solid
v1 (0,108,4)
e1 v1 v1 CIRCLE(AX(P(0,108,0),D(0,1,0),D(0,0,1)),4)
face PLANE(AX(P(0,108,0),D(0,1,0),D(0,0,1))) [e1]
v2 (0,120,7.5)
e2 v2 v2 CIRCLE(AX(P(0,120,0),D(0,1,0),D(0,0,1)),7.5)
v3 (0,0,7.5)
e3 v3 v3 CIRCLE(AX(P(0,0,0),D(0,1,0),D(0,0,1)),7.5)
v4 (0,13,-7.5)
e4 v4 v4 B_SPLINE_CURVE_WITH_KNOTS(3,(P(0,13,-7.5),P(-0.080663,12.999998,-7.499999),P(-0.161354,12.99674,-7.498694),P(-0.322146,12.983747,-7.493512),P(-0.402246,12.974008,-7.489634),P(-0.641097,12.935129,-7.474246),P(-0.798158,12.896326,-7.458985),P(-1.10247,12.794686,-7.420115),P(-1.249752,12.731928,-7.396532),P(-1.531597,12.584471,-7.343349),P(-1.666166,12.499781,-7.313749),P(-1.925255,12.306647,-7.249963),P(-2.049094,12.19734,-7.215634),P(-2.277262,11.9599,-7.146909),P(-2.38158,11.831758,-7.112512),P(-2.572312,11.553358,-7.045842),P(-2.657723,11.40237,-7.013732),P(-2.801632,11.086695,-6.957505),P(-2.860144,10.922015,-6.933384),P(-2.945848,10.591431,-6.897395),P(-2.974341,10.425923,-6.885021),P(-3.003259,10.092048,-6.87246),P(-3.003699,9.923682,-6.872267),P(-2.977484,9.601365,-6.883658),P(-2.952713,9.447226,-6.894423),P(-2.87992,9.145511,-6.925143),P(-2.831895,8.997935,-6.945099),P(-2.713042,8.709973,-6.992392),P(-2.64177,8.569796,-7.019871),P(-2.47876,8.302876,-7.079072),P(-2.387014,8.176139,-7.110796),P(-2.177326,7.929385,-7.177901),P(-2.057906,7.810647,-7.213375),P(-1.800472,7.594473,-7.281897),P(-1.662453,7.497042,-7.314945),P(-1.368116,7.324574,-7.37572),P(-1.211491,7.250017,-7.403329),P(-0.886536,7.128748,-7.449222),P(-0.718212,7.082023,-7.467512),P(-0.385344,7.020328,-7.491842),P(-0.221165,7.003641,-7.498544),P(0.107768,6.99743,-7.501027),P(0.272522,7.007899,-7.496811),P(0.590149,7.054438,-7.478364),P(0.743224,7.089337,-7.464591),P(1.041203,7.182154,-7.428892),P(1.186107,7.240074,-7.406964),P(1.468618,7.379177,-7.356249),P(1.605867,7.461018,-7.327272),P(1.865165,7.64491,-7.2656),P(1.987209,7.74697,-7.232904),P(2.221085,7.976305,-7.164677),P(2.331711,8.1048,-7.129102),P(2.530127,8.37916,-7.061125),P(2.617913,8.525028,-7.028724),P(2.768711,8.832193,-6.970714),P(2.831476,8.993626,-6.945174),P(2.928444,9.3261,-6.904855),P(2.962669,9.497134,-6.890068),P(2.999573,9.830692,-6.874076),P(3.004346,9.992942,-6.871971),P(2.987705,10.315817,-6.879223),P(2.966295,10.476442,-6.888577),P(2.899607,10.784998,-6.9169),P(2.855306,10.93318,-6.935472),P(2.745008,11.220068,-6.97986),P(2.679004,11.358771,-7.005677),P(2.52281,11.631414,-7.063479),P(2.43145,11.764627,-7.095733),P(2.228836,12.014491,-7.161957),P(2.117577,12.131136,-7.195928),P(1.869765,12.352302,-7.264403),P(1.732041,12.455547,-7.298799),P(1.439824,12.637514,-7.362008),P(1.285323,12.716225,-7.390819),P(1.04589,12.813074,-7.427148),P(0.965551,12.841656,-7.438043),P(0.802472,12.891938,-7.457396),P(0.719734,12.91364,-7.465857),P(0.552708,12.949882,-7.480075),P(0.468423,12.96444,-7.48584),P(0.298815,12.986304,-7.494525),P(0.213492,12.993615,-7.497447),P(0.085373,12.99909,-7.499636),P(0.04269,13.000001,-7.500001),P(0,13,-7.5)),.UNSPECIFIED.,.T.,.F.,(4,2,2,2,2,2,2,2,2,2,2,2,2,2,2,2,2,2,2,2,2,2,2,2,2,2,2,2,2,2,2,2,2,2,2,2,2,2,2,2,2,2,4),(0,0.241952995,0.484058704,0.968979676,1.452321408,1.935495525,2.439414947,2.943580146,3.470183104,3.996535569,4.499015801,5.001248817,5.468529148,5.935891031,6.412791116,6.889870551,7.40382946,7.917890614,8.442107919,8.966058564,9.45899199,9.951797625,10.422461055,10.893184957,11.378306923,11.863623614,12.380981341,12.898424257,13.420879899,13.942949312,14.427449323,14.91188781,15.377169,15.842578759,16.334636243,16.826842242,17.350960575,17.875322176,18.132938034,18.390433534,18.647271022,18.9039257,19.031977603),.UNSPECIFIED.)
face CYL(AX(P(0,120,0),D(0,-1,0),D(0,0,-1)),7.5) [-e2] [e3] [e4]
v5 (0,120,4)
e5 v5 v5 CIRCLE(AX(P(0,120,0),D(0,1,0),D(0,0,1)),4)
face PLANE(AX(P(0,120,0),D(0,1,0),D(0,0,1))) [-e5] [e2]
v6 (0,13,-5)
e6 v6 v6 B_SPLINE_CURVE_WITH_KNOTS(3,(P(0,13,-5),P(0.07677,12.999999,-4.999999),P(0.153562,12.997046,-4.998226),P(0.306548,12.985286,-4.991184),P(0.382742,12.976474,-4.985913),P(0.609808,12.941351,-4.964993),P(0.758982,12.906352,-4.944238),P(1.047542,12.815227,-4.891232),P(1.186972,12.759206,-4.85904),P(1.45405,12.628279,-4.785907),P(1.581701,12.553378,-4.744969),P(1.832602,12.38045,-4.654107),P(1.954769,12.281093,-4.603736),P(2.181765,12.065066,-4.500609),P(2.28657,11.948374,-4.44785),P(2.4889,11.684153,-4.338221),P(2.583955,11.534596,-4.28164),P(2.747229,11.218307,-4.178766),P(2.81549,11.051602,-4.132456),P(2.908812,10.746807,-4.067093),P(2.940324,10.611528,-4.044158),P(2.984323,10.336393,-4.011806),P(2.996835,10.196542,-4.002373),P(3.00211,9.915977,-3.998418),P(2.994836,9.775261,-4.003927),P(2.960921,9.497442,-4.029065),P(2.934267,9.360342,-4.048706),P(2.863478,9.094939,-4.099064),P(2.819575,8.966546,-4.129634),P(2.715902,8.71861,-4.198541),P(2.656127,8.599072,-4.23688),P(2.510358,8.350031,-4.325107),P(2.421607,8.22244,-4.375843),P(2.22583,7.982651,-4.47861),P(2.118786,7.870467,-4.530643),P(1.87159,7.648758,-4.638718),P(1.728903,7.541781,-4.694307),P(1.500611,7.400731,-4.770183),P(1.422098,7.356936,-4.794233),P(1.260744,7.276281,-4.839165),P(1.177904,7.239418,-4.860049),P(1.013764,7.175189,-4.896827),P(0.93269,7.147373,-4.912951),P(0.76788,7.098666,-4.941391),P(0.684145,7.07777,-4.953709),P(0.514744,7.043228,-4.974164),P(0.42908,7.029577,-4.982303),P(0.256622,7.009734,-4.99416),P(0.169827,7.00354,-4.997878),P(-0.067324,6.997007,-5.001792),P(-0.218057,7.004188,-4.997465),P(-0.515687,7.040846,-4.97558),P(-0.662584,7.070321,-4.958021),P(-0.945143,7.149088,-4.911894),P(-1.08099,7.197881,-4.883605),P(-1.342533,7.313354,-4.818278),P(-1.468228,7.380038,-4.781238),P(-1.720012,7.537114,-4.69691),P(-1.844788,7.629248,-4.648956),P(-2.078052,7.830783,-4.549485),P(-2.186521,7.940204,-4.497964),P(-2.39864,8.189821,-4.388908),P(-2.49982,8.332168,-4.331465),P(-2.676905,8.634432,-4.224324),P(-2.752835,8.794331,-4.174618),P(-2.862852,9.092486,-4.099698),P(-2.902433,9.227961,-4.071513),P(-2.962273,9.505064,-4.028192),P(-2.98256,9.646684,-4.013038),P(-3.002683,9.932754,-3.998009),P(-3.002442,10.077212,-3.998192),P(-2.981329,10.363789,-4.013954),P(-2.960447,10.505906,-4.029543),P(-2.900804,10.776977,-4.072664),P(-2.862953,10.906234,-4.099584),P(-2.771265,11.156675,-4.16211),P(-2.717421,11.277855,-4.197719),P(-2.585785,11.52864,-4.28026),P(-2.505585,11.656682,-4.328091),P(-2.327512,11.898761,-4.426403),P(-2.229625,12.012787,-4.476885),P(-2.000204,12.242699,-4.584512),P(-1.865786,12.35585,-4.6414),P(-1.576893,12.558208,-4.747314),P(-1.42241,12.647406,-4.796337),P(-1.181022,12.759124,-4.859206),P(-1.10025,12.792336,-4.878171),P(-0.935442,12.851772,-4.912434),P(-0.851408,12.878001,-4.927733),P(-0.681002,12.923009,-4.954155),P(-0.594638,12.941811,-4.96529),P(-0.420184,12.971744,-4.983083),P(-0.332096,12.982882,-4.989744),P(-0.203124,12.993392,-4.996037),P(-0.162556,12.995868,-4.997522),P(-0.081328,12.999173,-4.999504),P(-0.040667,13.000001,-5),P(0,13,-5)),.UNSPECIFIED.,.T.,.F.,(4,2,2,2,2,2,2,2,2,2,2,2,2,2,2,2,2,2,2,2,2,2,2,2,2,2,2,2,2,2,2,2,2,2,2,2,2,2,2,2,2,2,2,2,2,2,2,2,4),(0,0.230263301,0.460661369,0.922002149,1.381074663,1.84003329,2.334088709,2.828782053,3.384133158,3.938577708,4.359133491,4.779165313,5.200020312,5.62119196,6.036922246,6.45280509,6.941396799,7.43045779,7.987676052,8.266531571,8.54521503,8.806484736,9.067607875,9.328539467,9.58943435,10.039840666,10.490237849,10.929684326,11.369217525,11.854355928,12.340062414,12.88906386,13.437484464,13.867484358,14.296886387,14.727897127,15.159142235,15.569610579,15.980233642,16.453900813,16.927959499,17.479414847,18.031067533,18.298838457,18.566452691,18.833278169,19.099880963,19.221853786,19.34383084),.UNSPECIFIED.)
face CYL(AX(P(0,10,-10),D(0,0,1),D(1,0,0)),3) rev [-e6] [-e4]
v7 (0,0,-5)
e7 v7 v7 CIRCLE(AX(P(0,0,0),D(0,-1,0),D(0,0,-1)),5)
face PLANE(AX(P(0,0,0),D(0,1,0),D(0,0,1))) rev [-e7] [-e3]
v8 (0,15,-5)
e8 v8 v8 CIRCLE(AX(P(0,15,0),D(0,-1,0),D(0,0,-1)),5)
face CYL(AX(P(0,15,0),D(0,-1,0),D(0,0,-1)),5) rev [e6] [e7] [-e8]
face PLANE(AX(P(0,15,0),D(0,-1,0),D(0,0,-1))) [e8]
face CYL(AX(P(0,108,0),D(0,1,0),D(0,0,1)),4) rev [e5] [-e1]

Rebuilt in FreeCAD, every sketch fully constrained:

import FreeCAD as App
import Part
import Sketcher

doc = App.newDocument("Part")
params = doc.addObject("Spreadsheet::Sheet", "Params")
for row, (alias, value) in enumerate([
    ("sketch1_diameter", "15 mm"),
    ("pad1_length", "120 mm"),
    ("sketch2_diameter", "10 mm"),
    ("pocket1_length", "15 mm"),
    ("sketch3_diameter", "6 mm"),
    ("pocket2_length", "10 mm"),
    ("sketch4_diameter", "8 mm"),
    ("pocket3_length", "12 mm"),
], start=1):
    params.set(f"A{row}", alias)
    params.set(f"B{row}", "=" + value)
    params.setAlias(f"B{row}", alias)

body = doc.addObject("PartDesign::Body", "Body")

sketch1 = body.newObject("Sketcher::SketchObject", "Sketch")
sketch1.AttachmentSupport = (doc.getObject("XZ_Plane"), [""])
sketch1.MapMode = "FlatFace"
sketch1.addGeometry(Part.Circle(App.Vector(0, 0, 0), App.Vector(0, 0, 1), 7.5), False)
sketch1.addConstraint(Sketcher.Constraint("Coincident", 0, 3, -1, 1))
sketch1.addConstraint(Sketcher.Constraint("Diameter", 0, 15.0))
sketch1.setExpression("Constraints[1]", "Params.sketch1_diameter")
pad1 = body.newObject("PartDesign::Pad", "Pad")
pad1.Profile = sketch1
pad1.setExpression("Length", "Params.pad1_length")
pad1.Reversed = True

sketch2 = body.newObject("Sketcher::SketchObject", "Sketch001")
sketch2.AttachmentSupport = (doc.getObject("XZ_Plane"), [""])
sketch2.MapMode = "FlatFace"
sketch2.addGeometry(Part.Circle(App.Vector(0, 0, 0), App.Vector(0, 0, 1), 5), False)
sketch2.addConstraint(Sketcher.Constraint("Coincident", 0, 3, -1, 1))
sketch2.addConstraint(Sketcher.Constraint("Diameter", 0, 10.0))
sketch2.setExpression("Constraints[1]", "Params.sketch2_diameter")
pocket1 = body.newObject("PartDesign::Pocket", "Pocket")
pocket1.Profile = sketch2
pocket1.setExpression("Length", "Params.pocket1_length")

sketch3 = body.newObject("Sketcher::SketchObject", "Sketch002")
sketch3.AttachmentSupport = (doc.getObject("XY_Plane"), [""])
sketch3.MapMode = "FlatFace"
sketch3.addGeometry(Part.Circle(App.Vector(0, 10, 0), App.Vector(0, 0, 1), 3), False)
sketch3.addConstraint(Sketcher.Constraint("PointOnObject", 0, 3, -2))
sketch3.addConstraint(Sketcher.Constraint("Diameter", 0, 6.0))
sketch3.addConstraint(Sketcher.Constraint("DistanceY", -1, 1, 0, 3, 10.0))
sketch3.setExpression("Constraints[1]", "Params.sketch3_diameter")
pocket2 = body.newObject("PartDesign::Pocket", "Pocket001")
pocket2.Profile = sketch3
pocket2.setExpression("Length", "Params.pocket2_length")

sketch4 = body.newObject("Sketcher::SketchObject", "Sketch003")
sketch4.AttachmentSupport = (doc.getObject("XZ_Plane"), [""])
sketch4.MapMode = "FlatFace"
sketch4.AttachmentOffset = App.Placement(App.Vector(0, 0, -120), App.Rotation())
sketch4.addGeometry(Part.Circle(App.Vector(0, 0, 0), App.Vector(0, 0, 1), 4), False)
sketch4.addConstraint(Sketcher.Constraint("Coincident", 0, 3, -1, 1))
sketch4.addConstraint(Sketcher.Constraint("Diameter", 0, 8.0))
sketch4.setExpression("Constraints[1]", "Params.sketch4_diameter")
pocket3 = body.newObject("PartDesign::Pocket", "Pocket002")
pocket3.Profile = sketch4
pocket3.setExpression("Length", "Params.pocket3_length")
pocket3.Reversed = True

doc.recompute()
